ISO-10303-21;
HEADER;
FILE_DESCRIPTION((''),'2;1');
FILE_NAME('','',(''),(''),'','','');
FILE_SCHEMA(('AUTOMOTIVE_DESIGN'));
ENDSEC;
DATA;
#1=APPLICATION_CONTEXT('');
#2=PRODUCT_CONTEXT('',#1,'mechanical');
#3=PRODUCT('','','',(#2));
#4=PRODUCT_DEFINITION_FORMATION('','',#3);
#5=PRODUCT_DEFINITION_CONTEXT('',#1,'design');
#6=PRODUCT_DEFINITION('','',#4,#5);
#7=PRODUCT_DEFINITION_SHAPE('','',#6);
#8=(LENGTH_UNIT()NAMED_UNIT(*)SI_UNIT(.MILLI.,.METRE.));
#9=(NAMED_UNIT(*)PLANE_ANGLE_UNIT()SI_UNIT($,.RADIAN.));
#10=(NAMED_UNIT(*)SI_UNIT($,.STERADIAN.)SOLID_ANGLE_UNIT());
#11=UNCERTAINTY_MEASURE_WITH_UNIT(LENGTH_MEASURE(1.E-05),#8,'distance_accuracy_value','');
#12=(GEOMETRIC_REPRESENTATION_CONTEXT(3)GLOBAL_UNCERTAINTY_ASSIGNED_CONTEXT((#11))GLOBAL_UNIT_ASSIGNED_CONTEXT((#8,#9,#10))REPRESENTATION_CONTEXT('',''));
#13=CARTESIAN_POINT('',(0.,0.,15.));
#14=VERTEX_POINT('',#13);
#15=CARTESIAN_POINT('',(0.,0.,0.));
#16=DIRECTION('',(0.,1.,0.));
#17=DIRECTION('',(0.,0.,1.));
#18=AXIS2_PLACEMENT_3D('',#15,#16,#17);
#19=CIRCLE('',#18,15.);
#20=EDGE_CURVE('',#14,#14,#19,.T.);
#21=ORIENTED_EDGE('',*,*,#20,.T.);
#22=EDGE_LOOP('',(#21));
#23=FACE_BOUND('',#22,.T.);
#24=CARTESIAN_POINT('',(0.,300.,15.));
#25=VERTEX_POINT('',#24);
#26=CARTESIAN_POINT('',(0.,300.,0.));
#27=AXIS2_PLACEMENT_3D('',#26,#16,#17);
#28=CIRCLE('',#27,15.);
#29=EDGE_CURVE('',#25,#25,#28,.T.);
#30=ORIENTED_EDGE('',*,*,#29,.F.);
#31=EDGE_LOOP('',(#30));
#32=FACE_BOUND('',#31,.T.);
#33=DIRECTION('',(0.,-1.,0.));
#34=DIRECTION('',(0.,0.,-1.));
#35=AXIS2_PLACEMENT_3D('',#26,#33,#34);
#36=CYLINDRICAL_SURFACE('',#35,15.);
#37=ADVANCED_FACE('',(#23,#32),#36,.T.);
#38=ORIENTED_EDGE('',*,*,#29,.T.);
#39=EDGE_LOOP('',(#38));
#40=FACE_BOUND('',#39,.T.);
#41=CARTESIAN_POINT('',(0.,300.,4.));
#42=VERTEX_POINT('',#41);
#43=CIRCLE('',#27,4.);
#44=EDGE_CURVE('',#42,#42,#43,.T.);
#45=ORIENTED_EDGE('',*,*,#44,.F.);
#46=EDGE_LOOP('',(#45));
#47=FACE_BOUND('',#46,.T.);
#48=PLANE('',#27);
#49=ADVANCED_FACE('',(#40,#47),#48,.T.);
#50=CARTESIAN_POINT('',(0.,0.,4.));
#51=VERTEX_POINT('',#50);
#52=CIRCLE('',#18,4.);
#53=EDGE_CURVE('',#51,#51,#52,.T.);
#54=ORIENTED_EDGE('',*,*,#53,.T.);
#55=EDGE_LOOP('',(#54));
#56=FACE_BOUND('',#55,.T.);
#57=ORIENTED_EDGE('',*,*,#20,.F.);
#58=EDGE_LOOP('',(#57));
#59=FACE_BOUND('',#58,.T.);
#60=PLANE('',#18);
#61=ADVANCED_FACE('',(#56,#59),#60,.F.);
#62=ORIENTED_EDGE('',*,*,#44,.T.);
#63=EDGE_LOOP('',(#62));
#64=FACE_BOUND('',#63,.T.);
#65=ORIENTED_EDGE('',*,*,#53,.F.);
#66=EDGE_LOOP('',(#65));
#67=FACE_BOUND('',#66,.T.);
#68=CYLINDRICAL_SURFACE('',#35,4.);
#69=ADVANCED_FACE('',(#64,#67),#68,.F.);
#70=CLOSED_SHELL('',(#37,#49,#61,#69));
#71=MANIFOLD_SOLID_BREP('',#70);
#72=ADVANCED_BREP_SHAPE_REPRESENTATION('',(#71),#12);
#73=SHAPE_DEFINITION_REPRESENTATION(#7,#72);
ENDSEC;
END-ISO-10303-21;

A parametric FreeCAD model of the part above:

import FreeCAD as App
import Part
import Sketcher

V = App.Vector
Q = App.Units.Quantity

doc = App.newDocument("Part")
body = doc.addObject("PartDesign::Body", "Body")

sketch1 = doc.addObject("Sketcher::SketchObject", "Sketch")
body.addObject(sketch1)
sketch1.AttachmentSupport = (doc.XZ_Plane, [""])
sketch1.MapMode = "FlatFace"
sketch1.addGeometry([
    Part.Circle(V(0, 0, 0), V(0, 0, 1), 15),
    Part.Circle(V(0, 0, 0), V(0, 0, 1), 4),
], False)
sketch1.addConstraint([
    Sketcher.Constraint("Coincident", 0, 3, -1, 1),
    Sketcher.Constraint("Coincident", 1, 3, -1, 1),
    Sketcher.Constraint("Diameter", 0, Q("30 mm")),
    Sketcher.Constraint("Diameter", 1, Q("8 mm")),
])
pad1 = doc.addObject("PartDesign::Pad", "Pad")
body.addObject(pad1)
pad1.Profile = sketch1
pad1.Length = 300
pad1.Reversed = True

doc.recompute()
